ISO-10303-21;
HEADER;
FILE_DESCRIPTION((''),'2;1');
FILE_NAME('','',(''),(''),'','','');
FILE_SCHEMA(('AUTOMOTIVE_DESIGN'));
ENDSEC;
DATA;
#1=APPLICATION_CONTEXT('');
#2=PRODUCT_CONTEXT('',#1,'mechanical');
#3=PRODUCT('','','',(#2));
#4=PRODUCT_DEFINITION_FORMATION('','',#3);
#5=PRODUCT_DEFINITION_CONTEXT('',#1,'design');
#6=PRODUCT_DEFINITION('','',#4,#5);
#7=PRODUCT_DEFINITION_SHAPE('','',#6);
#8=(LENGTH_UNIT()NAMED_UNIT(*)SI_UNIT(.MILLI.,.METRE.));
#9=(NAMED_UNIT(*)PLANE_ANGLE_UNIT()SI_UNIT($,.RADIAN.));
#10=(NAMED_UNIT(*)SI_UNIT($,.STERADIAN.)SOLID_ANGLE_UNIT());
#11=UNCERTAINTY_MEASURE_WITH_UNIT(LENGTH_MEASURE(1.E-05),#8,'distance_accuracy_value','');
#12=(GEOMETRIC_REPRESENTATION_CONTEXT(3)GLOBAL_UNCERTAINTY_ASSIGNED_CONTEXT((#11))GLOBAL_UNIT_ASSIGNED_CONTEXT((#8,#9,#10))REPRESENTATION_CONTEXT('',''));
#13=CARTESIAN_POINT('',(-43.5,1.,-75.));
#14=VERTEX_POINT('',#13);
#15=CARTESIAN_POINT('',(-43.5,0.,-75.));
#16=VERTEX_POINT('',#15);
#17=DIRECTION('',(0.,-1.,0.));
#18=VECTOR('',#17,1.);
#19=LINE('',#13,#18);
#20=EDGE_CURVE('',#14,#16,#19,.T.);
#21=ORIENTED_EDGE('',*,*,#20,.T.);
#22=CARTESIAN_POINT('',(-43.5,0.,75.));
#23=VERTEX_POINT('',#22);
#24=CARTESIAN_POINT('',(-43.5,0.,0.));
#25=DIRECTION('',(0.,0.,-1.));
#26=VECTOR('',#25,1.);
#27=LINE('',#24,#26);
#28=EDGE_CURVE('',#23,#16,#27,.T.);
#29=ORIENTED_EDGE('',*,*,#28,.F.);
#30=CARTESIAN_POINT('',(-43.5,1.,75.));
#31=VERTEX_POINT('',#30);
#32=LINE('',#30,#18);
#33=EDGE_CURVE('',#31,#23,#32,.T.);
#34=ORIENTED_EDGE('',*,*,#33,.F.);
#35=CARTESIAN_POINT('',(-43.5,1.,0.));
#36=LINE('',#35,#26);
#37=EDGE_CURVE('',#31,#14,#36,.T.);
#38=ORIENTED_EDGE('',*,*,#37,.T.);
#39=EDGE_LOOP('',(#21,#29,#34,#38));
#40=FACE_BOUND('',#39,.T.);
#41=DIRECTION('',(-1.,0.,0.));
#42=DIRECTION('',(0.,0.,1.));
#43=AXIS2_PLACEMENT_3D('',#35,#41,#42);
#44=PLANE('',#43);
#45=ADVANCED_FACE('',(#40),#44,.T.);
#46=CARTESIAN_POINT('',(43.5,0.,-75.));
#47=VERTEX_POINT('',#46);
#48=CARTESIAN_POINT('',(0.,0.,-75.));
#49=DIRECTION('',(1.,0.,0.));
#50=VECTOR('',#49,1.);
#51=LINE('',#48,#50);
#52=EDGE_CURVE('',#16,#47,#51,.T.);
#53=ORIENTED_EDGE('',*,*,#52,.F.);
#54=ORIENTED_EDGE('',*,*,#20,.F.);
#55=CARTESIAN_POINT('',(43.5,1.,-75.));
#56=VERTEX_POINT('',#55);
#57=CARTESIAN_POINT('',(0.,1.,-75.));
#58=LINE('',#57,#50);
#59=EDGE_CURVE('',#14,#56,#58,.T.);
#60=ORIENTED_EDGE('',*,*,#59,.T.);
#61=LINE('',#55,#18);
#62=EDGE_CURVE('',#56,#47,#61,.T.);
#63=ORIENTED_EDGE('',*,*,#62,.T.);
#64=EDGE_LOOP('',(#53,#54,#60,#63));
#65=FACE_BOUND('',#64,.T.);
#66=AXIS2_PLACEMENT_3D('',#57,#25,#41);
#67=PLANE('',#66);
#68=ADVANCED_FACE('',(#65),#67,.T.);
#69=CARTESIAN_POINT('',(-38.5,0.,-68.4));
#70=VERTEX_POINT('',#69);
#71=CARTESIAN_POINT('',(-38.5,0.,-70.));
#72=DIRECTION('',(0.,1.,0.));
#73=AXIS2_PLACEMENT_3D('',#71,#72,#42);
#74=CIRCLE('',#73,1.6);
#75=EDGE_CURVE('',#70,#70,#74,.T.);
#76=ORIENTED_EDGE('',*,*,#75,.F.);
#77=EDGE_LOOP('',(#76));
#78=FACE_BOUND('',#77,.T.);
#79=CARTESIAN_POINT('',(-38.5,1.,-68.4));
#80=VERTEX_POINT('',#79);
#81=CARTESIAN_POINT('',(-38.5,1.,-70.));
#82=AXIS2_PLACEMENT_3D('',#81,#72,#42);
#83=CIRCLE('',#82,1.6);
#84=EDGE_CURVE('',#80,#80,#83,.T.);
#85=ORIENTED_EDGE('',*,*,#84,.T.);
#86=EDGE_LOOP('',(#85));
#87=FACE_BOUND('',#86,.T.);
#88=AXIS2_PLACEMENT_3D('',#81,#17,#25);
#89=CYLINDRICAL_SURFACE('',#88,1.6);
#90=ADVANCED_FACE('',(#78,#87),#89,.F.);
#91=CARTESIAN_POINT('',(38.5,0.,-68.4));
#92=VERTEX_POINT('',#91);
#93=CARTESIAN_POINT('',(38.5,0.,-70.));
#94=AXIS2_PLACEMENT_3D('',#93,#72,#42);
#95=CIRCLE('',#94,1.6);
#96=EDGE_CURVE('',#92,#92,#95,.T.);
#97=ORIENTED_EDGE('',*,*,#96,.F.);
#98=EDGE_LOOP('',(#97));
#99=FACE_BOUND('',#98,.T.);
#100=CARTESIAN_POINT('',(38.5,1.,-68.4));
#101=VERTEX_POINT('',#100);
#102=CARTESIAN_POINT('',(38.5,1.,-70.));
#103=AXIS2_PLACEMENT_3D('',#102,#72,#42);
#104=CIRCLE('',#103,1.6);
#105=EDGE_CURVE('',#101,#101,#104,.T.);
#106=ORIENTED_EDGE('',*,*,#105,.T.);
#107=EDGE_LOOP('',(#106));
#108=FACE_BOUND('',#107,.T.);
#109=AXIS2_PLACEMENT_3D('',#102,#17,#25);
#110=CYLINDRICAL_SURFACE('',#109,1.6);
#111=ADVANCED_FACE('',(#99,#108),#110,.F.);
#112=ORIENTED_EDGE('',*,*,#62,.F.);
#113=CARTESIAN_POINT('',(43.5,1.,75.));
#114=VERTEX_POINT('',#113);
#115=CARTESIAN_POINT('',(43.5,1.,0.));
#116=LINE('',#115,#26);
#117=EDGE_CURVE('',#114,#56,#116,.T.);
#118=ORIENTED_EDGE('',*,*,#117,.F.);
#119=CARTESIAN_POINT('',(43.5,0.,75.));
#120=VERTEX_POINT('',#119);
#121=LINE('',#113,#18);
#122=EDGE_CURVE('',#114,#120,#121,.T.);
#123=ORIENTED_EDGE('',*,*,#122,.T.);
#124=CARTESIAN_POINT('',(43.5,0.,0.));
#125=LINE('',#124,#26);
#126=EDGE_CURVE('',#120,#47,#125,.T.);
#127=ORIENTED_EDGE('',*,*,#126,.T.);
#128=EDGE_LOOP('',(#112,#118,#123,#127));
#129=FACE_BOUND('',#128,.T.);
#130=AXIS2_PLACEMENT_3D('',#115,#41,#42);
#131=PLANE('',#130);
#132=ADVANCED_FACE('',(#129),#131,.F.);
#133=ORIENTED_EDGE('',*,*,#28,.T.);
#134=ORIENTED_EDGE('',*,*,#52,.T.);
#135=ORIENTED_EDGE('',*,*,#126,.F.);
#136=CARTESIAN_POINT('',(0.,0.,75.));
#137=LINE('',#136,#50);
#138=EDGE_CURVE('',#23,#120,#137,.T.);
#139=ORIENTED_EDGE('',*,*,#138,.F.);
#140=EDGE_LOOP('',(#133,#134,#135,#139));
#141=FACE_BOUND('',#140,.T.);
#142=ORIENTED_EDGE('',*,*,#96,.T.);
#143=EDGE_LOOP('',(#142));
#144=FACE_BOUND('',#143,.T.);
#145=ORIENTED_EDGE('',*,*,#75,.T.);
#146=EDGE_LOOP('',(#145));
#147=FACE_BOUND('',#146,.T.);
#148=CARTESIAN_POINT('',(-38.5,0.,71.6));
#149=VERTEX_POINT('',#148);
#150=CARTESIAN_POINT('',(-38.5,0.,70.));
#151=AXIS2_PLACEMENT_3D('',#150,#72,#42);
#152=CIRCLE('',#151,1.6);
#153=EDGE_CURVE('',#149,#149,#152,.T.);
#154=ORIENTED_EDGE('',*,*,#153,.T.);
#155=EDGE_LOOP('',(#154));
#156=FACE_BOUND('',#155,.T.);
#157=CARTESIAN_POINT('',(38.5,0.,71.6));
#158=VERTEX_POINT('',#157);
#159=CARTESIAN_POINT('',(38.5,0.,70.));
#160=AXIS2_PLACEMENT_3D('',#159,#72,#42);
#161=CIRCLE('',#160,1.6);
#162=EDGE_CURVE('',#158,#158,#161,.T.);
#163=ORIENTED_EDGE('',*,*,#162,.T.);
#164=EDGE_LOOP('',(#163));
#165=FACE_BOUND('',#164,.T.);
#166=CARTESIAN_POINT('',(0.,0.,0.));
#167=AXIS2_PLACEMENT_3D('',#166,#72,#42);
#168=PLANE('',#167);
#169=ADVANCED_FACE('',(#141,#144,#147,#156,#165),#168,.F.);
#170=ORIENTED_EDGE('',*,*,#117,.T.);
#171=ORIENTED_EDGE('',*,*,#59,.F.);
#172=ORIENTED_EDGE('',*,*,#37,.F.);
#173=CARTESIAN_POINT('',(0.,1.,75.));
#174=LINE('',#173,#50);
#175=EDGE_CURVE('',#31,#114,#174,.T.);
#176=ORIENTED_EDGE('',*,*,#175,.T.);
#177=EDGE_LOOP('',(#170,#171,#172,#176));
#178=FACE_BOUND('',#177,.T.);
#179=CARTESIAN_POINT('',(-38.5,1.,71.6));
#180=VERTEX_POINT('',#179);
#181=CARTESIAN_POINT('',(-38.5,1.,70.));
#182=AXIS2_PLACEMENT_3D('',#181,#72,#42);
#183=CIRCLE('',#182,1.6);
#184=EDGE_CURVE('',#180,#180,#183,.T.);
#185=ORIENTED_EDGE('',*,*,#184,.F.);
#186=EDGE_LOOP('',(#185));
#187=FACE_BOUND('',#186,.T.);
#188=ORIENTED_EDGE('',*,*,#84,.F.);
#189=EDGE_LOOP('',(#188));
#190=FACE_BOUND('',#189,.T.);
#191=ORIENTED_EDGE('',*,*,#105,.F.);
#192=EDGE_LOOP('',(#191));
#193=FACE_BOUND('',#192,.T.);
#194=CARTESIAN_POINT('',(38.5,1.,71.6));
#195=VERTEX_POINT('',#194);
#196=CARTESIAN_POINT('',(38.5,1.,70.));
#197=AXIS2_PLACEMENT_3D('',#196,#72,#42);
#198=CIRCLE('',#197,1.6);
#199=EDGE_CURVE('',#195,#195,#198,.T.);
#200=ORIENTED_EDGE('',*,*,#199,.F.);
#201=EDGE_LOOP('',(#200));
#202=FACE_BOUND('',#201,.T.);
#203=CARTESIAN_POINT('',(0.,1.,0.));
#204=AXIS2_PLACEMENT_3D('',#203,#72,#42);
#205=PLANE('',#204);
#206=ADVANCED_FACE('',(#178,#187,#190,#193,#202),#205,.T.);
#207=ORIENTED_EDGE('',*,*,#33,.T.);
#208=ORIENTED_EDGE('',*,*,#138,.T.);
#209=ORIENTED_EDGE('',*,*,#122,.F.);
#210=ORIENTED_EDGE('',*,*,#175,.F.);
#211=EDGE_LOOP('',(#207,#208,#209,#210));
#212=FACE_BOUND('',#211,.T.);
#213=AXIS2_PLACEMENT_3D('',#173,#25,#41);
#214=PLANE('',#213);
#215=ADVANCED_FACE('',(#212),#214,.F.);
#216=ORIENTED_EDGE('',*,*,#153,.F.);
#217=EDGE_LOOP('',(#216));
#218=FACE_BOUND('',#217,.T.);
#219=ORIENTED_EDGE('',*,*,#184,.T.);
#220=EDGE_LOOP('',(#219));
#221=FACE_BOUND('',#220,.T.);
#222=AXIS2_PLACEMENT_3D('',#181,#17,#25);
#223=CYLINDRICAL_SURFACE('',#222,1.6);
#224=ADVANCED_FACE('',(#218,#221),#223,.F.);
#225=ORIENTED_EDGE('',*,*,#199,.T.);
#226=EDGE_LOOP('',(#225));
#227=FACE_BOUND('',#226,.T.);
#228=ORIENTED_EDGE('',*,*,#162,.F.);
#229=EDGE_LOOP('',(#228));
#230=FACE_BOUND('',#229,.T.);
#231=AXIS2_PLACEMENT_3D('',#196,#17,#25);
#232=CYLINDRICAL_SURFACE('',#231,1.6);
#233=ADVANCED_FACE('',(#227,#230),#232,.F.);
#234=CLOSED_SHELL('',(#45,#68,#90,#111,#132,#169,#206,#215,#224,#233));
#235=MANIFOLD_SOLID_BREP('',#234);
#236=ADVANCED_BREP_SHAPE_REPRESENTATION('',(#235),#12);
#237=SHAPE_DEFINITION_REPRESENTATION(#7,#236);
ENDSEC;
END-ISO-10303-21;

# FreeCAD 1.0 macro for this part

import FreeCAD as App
import Part
import Sketcher
from FreeCAD import Vector


def add_polygon(sketch, points):
    """Adds a closed chain of lines whose ends are joined by coincident constraints."""
    first, n = sketch.GeometryCount, len(points)
    for a, b in zip(points, points[1:] + points[:1]):
        sketch.addGeometry(Part.LineSegment(App.Vector(*a, 0), App.Vector(*b, 0)), False)
    for i in range(n):
        sketch.addConstraint(Sketcher.Constraint("Coincident", first + i, 2, first + (i + 1) % n, 1))

doc = App.newDocument("Part")
body = doc.addObject("PartDesign::Body", "Body")

sketch1 = body.newObject("Sketcher::SketchObject", "Sketch")
sketch1.AttachmentSupport = (doc.getObject("XZ_Plane"), [""])
sketch1.MapMode = "FlatFace"
add_polygon(sketch1, [(-43.5, -75), (-43.5, 75), (43.5, 75), (43.5, -75)])
sketch1.addGeometry(Part.Circle(Vector(-38.5, 70, 0), Vector(0, 0, 1), 1.6), False)
sketch1.addGeometry(Part.Circle(Vector(38.5, 70, 0), Vector(0, 0, 1), 1.6), False)
sketch1.addGeometry(Part.Circle(Vector(-38.5, -70, 0), Vector(0, 0, 1), 1.6), False)
sketch1.addGeometry(Part.Circle(Vector(38.5, -70, 0), Vector(0, 0, 1), 1.6), False)
sketch1.addConstraint(Sketcher.Constraint("Vertical", 0))
sketch1.addConstraint(Sketcher.Constraint("Horizontal", 1))
sketch1.addConstraint(Sketcher.Constraint("Vertical", 2))
sketch1.addConstraint(Sketcher.Constraint("Horizontal", 3))
sketch1.addConstraint(Sketcher.Constraint("Equal", 4, 5))
sketch1.addConstraint(Sketcher.Constraint("Equal", 5, 6))
sketch1.addConstraint(Sketcher.Constraint("Equal", 6, 7))
sketch1.addConstraint(Sketcher.Constraint("Symmetric", 5, 3, 6, 3, -1, 1))
sketch1.addConstraint(Sketcher.Constraint("Symmetric", 4, 3, 7, 3, -1, 1))
sketch1.addConstraint(Sketcher.Constraint("Symmetric", 0, 2, 2, 2, -1, 1))
sketch1.addConstraint(Sketcher.Constraint("Symmetric", 4, 3, 5, 3, -2))
sketch1.addConstraint(Sketcher.Constraint("Diameter", 4, 3.2))
sketch1.addConstraint(Sketcher.Constraint("DistanceX", 1, 1, 1, 2, 87.0))
sketch1.addConstraint(Sketcher.Constraint("DistanceY", 0, 1, 0, 2, 150.0))
sketch1.addConstraint(Sketcher.Constraint("DistanceY", -1, 1, 4, 3, 70.0))
sketch1.addConstraint(Sketcher.Constraint("DistanceX", 4, 3, 5, 3, 77.0))
pad1 = body.newObject("PartDesign::Pad", "Pad")
pad1.Profile = sketch1
pad1.Length = 1
pad1.Reversed = True

doc.recompute()
